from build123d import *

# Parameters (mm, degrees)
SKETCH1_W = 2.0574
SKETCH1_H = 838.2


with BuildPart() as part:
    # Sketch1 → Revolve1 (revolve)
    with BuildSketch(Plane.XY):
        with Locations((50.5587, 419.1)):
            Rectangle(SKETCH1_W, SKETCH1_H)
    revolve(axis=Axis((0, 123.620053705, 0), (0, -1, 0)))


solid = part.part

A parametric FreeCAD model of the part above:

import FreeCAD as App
import Part
import Sketcher
from FreeCAD import Vector
Q = App.Units.Quantity


def add_polygon(sketch, points):
    """Adds a closed chain of lines whose ends are joined by coincident constraints."""
    first, n = sketch.GeometryCount, len(points)
    for a, b in zip(points, points[1:] + points[:1]):
        sketch.addGeometry(Part.LineSegment(App.Vector(*a, 0), App.Vector(*b, 0)), False)
    for i in range(n):
        sketch.addConstraint(Sketcher.Constraint("Coincident", first + i, 2, first + (i + 1) % n, 1))

doc = App.newDocument("Part")
body = doc.addObject("PartDesign::Body", "Body")

sketch1 = body.newObject("Sketcher::SketchObject", "Sketch")
sketch1.AttachmentSupport = (doc.getObject("XY_Plane"), [""])
sketch1.MapMode = "FlatFace"
add_polygon(sketch1, [(49.53, 838.2), (49.53, 0), (51.5874, 0), (51.5874, 838.2)])
sketch1.addConstraint(Sketcher.Constraint("Vertical", 0))
sketch1.addConstraint(Sketcher.Constraint("Horizontal", 1))
sketch1.addConstraint(Sketcher.Constraint("Vertical", 2))
sketch1.addConstraint(Sketcher.Constraint("Horizontal", 3))
sketch1.addConstraint(Sketcher.Constraint("PointOnObject", 0, 2, -1))
sketch1.addConstraint(Sketcher.Constraint("DistanceY", 0, 2, 0, 1, Q("33 in")))
sketch1.addConstraint(Sketcher.Constraint("DistanceX", 1, 1, 1, 2, Q("0.081 in")))
sketch1.addConstraint(Sketcher.Constraint("DistanceX", -1, 1, 0, 2, Q("1.95 in")))
revolution = body.newObject("PartDesign::Revolution", "Revolution")
revolution.Profile = sketch1
revolution.ReferenceAxis = (sketch1, ["V_Axis"])
revolution.Angle = 360

doc.recompute()
